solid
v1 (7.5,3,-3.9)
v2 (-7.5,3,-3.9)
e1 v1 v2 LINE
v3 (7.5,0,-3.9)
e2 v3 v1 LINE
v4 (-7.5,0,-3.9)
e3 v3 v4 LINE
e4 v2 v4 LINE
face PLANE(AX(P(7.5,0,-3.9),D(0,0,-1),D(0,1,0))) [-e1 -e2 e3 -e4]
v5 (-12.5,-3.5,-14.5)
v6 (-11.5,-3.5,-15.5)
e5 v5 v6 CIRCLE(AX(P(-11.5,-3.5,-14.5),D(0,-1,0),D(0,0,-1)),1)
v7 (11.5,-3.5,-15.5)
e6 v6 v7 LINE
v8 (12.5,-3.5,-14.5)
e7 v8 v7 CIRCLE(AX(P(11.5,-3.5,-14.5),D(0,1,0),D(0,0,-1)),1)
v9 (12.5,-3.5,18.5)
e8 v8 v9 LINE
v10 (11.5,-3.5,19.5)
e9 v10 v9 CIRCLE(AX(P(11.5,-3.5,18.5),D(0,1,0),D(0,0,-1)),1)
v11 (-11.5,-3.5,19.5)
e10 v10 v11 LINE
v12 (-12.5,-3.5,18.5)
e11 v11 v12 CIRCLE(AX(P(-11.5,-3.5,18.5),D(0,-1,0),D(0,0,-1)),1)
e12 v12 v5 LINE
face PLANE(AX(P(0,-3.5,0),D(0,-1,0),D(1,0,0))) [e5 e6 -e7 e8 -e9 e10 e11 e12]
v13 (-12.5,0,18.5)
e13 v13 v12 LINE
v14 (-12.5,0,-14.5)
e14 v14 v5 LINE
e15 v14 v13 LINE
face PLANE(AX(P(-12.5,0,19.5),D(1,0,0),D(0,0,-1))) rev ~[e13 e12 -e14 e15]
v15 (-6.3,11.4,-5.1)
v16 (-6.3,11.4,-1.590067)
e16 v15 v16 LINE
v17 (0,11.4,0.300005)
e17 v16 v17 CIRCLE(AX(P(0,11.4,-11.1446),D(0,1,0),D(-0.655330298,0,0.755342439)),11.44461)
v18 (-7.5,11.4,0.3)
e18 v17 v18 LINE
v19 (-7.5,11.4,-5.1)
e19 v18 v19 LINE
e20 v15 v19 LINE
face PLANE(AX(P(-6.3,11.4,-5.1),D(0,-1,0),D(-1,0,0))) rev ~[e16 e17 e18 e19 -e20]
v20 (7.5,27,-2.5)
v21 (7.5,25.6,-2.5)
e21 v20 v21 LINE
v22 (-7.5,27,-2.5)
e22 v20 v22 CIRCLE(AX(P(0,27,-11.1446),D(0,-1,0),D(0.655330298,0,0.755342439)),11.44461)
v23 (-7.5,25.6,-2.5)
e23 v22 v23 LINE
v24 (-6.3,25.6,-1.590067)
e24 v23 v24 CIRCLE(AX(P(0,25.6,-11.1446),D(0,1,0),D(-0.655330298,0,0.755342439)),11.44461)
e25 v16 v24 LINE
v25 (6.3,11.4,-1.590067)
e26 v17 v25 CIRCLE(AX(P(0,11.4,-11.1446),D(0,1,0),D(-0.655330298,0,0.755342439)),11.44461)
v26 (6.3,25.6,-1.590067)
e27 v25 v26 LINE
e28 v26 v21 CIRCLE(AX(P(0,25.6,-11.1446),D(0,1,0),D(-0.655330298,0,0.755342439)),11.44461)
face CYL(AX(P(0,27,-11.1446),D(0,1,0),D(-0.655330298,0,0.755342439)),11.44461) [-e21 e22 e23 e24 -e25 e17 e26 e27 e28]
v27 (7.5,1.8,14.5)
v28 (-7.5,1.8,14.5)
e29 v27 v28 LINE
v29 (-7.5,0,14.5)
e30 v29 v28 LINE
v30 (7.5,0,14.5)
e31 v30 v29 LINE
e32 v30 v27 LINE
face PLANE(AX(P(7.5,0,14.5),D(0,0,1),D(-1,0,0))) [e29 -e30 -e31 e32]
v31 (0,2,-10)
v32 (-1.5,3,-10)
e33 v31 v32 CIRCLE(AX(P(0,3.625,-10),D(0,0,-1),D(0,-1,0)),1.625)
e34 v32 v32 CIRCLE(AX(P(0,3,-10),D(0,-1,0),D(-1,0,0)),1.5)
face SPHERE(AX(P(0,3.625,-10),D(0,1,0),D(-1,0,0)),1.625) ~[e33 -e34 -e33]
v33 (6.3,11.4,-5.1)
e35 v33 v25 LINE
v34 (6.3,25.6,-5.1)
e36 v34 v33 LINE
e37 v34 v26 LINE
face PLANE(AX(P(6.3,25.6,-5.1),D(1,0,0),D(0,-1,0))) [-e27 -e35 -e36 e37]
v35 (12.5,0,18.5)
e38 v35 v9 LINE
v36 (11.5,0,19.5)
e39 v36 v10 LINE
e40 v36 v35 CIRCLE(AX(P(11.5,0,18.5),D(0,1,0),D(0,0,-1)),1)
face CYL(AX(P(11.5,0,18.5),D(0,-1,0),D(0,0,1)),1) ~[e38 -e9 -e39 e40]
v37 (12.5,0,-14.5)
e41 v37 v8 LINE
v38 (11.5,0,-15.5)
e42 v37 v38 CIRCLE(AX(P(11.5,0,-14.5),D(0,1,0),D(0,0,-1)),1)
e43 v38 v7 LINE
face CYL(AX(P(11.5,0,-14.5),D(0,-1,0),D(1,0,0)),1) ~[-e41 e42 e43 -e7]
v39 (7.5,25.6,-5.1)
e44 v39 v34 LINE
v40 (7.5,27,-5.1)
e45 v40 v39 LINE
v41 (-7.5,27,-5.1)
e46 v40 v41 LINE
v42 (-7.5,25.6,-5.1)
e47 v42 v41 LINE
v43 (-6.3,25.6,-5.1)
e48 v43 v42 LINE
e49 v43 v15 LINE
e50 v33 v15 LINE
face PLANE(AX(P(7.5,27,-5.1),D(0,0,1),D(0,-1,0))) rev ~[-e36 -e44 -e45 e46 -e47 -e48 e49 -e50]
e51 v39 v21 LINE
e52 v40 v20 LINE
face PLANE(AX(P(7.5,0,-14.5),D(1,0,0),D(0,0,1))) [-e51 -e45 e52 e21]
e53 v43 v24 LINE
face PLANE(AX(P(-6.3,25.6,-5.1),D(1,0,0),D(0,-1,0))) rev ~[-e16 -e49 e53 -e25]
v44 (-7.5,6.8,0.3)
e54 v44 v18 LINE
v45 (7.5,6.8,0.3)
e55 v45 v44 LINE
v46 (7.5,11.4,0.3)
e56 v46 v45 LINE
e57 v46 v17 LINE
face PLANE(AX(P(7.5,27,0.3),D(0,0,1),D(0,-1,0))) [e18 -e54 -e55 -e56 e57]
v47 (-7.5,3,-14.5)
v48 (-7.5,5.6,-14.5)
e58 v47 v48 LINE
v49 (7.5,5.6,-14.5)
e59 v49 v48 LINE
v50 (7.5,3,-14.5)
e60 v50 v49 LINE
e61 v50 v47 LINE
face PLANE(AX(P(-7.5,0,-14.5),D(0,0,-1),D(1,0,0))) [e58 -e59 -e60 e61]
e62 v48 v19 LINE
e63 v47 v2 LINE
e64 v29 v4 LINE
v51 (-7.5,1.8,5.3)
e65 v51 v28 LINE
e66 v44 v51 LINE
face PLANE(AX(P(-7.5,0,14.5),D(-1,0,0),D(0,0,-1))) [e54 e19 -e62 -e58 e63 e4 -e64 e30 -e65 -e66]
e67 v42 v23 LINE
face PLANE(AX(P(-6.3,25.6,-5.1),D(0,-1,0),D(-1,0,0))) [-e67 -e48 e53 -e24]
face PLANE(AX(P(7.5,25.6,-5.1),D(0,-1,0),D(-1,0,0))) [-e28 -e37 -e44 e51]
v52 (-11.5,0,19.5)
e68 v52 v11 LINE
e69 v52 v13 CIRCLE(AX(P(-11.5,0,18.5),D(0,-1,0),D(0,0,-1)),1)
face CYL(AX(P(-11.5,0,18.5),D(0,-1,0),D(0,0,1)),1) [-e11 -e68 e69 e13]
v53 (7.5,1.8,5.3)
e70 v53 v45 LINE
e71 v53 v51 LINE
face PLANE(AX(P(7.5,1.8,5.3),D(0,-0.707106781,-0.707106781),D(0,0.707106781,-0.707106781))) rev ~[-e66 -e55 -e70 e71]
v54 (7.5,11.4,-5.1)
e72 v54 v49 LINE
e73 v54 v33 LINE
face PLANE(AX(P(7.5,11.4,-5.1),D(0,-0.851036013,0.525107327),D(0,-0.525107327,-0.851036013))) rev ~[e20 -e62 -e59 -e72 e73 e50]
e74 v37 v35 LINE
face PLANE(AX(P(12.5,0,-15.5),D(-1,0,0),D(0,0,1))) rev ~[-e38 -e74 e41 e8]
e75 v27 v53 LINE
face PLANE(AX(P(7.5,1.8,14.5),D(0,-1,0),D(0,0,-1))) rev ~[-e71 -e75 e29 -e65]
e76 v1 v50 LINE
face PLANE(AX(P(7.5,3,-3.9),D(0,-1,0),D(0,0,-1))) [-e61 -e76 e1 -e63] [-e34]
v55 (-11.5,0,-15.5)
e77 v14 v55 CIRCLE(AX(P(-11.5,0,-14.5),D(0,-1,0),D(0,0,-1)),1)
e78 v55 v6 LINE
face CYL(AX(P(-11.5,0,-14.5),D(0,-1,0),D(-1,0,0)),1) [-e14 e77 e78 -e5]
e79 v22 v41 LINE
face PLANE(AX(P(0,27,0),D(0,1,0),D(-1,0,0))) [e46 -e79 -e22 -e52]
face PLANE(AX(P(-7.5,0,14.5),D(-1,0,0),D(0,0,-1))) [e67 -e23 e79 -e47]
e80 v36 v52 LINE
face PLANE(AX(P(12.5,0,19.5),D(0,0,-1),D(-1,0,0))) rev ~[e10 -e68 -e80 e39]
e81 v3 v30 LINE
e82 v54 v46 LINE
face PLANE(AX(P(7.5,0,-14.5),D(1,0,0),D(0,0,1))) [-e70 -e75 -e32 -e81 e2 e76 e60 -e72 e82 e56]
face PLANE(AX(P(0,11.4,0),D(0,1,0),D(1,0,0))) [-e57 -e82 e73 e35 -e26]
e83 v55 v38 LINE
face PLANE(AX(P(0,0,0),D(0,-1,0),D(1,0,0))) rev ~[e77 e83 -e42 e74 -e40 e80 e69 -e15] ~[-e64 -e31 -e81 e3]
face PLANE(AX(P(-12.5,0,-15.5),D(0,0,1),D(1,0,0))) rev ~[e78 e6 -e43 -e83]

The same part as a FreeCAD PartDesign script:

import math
import FreeCAD as App
import Part
import Sketcher
from FreeCAD import Vector
Q = App.Units.Quantity


def edges_at(feature, points):
    """Names of the edges that pass closest to the given points."""
    edges = feature.Shape.Edges
    near = lambda p: min(range(len(edges)), key=lambda i: edges[i].distToShape(Part.Vertex(*p))[0])
    return sorted({f"Edge{near(p) + 1}" for p in points})


def add_polygon(sketch, points):
    """Adds a closed chain of lines whose ends are joined by coincident constraints."""
    first, n = sketch.GeometryCount, len(points)
    for a, b in zip(points, points[1:] + points[:1]):
        sketch.addGeometry(Part.LineSegment(App.Vector(*a, 0), App.Vector(*b, 0)), False)
    for i in range(n):
        sketch.addConstraint(Sketcher.Constraint("Coincident", first + i, 2, first + (i + 1) % n, 1))

doc = App.newDocument("Part")
params = doc.addObject("Spreadsheet::Sheet", "Params")
for row, (alias, value) in enumerate([
    ("sketch1_width", "15 mm"),
    ("sketch1_height", "29 mm"),
    ("pad1_length", "27 mm"),
    ("sketch2_width", "25 mm"),
    ("sketch2_height", "35 mm"),
    ("pad2_length", "3.5 mm"),
    ("fillet_radius", "1 mm"),
    ("fillet2_radius", "1 mm"),
    ("fillet3_radius", "1 mm"),
    ("sketch3_width", "3 mm"),
    ("sketch3_height", "9.4 mm"),
    ("sketch3_width2", "20.2 mm"),
    ("sketch3_width3", "15.6 mm"),
    ("sketch3_width4", "21.4 mm"),
    ("pocket1_length", "23 mm"),
    ("sketch4_width", "7.5 mm"),
    ("sketch4_height", "2.8 mm"),
    ("pocket2_length", "15.6 mm"),
    ("sketch5_width", "1.2 mm"),
    ("sketch5_height", "14.2 mm"),
    ("pocket3_length", "16 mm"),
    ("sketch6_height", "1 mm"),
    ("sketch6_width", "1.5 mm"),
    ("revolution_angle", "360 deg"),
], start=1):
    params.set(f"A{row}", alias)
    params.set(f"B{row}", "=" + value)
    params.setAlias(f"B{row}", alias)

body = doc.addObject("PartDesign::Body", "Body")

# Sketch on XZ plane
sketch1 = body.newObject("Sketcher::SketchObject", "Sketch")
sketch1.AttachmentSupport = (doc.getObject("XZ_Plane"), [""])
sketch1.MapMode = "FlatFace"
add_polygon(sketch1, [(-8, 14), (8, 14), (8, -14), (-8, -14)])  # lines 0-3
sketch1.addConstraint([
    Sketcher.Constraint("Horizontal", 0),
    Sketcher.Constraint("Vertical", 1),
    Sketcher.Constraint("Horizontal", 2),
    Sketcher.Constraint("Vertical", 3),
    Sketcher.Constraint("Symmetric", 0, 2, 2, 2, -1, 1),
    Sketcher.Constraint("DistanceX", 0, 1, 0, 2, Q("15 mm")),
    Sketcher.Constraint("DistanceY", 1, 2, 1, 1, Q("29 mm")),
])
sketch1.setExpression("Constraints[9]", "Params.sketch1_width")
sketch1.setExpression("Constraints[10]", "Params.sketch1_height")
pad1 = body.newObject("PartDesign::Pad", "Pad")
pad1.Profile = sketch1
pad1.setExpression("Length", "Params.pad1_length")
pad1.Reversed = True

# Sketch on XZ plane
sketch2 = body.newObject("Sketcher::SketchObject", "Sketch001")
sketch2.AttachmentSupport = (doc.getObject("XZ_Plane"), [""])
sketch2.MapMode = "FlatFace"
add_polygon(sketch2, [(12, -16), (12, 20), (-12, 20), (-12, -16)])  # lines 0-3
sketch2.addConstraint([
    Sketcher.Constraint("Vertical", 0),
    Sketcher.Constraint("Horizontal", 1),
    Sketcher.Constraint("Vertical", 2),
    Sketcher.Constraint("Horizontal", 3),
    Sketcher.Constraint("DistanceX", 1, 2, 1, 1, Q("25 mm")),
    Sketcher.Constraint("DistanceY", 0, 1, 0, 2, Q("35 mm")),
    Sketcher.Constraint("DistanceX", -1, 1, 0, 2, Q("12.5 mm")),
    Sketcher.Constraint("DistanceY", -1, 1, 0, 2, Q("19.5 mm")),
])
sketch2.setExpression("Constraints[8]", "Params.sketch2_width")
sketch2.setExpression("Constraints[9]", "Params.sketch2_height")
pad2 = body.newObject("PartDesign::Pad", "Pad001")
pad2.Profile = sketch2
pad2.setExpression("Length", "Params.pad2_length")
doc.recompute()

fillet = body.newObject("PartDesign::Fillet", "Fillet")
fillet.Base = (pad2, edges_at(pad2, [(-12.5, -1.75, 19.5)]))
fillet.setExpression("Radius", "Params.fillet_radius")
doc.recompute()

fillet2 = body.newObject("PartDesign::Fillet", "Fillet001")
fillet2.Base = (fillet, edges_at(fillet, [(12.5, -1.75, 19.5), (12.5, -1.75, -15.5)]))
fillet2.setExpression("Radius", "Params.fillet2_radius")
doc.recompute()

fillet3 = body.newObject("PartDesign::Fillet", "Fillet002")
fillet3.Base = (fillet2, edges_at(fillet2, [(-12.5, -1.75, -15.5)]))
fillet3.setExpression("Radius", "Params.fillet3_radius")

# Sketch on YZ plane
sketch3 = body.newObject("Sketcher::SketchObject", "Sketch002")
sketch3.AttachmentSupport = (doc.getObject("YZ_Plane"), [""])
sketch3.MapMode = "FlatFace"
sketch3.AttachmentOffset = App.Placement(Vector(0, 0, 7.5), App.Rotation())
add_polygon(sketch3, [(6.8, 0.3), (27, 0.3), (27, 14.5), (1.8, 14.5), (1.8, 5.3)])  # lines 0-4
add_polygon(sketch3, [(27, -14.5), (27, -5.1), (11.4, -5.1), (5.6, -14.5)])  # lines 5-8
add_polygon(sketch3, [(3, -3.9), (0, -3.9), (0, -14.5), (3, -14.5)])  # lines 9-12
sketch3.addConstraint([
    Sketcher.Constraint("Horizontal", 0),
    Sketcher.Constraint("Vertical", 1),
    Sketcher.Constraint("Horizontal", 2),
    Sketcher.Constraint("Vertical", 3),
    Sketcher.Constraint("Vertical", 5),
    Sketcher.Constraint("Horizontal", 6),
    Sketcher.Constraint("Horizontal", 8),
    Sketcher.Constraint("Horizontal", 9),
    Sketcher.Constraint("Vertical", 10),
    Sketcher.Constraint("Horizontal", 11),
    Sketcher.Constraint("Vertical", 12),
    Sketcher.Constraint("Symmetric", 1, 2, 8, 2, -1),
    Sketcher.Constraint("PointOnObject", 9, 2, -2),
    Sketcher.Constraint("Horizontal", 8, 2, 10, 2),
    Sketcher.Constraint("DistanceX", 9, 2, 9, 1, Q("3 mm")),
    Sketcher.Constraint("DistanceY", 5, 1, 5, 2, Q("9.4 mm")),
    Sketcher.Constraint("DistanceY", 0, 2, 3, 2, Q("5 mm")),
    Sketcher.Constraint("DistanceX", 3, 2, 4, 2, Q("5 mm")),
    Sketcher.Constraint("DistanceX", 0, 1, 0, 2, Q("20.2 mm")),
    Sketcher.Constraint("DistanceX", 6, 2, 6, 1, Q("15.6 mm")),
    Sketcher.Constraint("DistanceX", 8, 1, 8, 2, Q("21.4 mm")),
    Sketcher.Constraint("DistanceY", 1, 1, 1, 2, Q("14.2 mm")),
    Sketcher.Constraint("DistanceY", 10, 2, 10, 1, Q("10.6 mm")),
    Sketcher.Constraint("DistanceX", -1, 1, 0, 2, Q("27 mm")),
    Sketcher.Constraint("DistanceY", -1, 1, 0, 2, Q("0.3 mm")),
])
sketch3.setExpression("Constraints[27]", "Params.sketch3_width")
sketch3.setExpression("Constraints[28]", "Params.sketch3_height")
sketch3.setExpression("Constraints[31]", "Params.sketch3_width2")
sketch3.setExpression("Constraints[32]", "Params.sketch3_width3")
sketch3.setExpression("Constraints[33]", "Params.sketch3_width4")
pocket1 = body.newObject("PartDesign::Pocket", "Pocket")
pocket1.Profile = sketch3
pocket1.setExpression("Length", "Params.pocket1_length")

# Sketch on XZ plane
sketch4 = body.newObject("Sketcher::SketchObject", "Sketch003")
sketch4.AttachmentSupport = (doc.getObject("XZ_Plane"), [""])
sketch4.MapMode = "FlatFace"
sketch4.AttachmentOffset = App.Placement(Vector(0, 0, -27), App.Rotation())
sketch4.addGeometry([
    Part.ArcOfCircle(Part.Circle(Vector(0, -11.1, 0), Vector(0, 0, 1), 11.4), math.radians(90), math.radians(131)),  # 0
    Part.LineSegment(Vector(-7.5, -2.5, 0), Vector(-7.5, 0.3, 0)),  # 1
    Part.LineSegment(Vector(-7.5, 0.3, 0), Vector(0, 0.3, 0)),  # 2
    Part.ArcOfCircle(Part.Circle(Vector(0, -11.1, 0), Vector(0, 0, 1), 11.4), math.radians(49), math.radians(90)),  # 3
    Part.LineSegment(Vector(0, 0.3, 0), Vector(7.5, 0.3, 0)),  # 4
    Part.LineSegment(Vector(7.5, 0.3, 0), Vector(7.5, -2.5, 0)),  # 5
], False)
sketch4.addConstraint([
    Sketcher.Constraint("Coincident", 0, 2, 1, 1),
    Sketcher.Constraint("Coincident", 1, 2, 2, 1),
    Sketcher.Constraint("Tangent", 2, 2, 0, 1),
    Sketcher.Constraint("Tangent", 3, 2, 4, 1),
    Sketcher.Constraint("Coincident", 4, 2, 5, 1),
    Sketcher.Constraint("Coincident", 5, 2, 3, 1),
    Sketcher.Constraint("Vertical", 1),
    Sketcher.Constraint("Horizontal", 2),
    Sketcher.Constraint("Horizontal", 4),
    Sketcher.Constraint("Vertical", 5),
    Sketcher.Constraint("Coincident", 3, 3, 0, 3),
    Sketcher.Constraint("Equal", 0, 3),
    Sketcher.Constraint("Symmetric", 0, 2, 5, 2, -2),
    Sketcher.Constraint("DistanceX", 2, 1, 2, 2, Q("7.5 mm")),
    Sketcher.Constraint("DistanceY", 1, 1, 1, 2, Q("2.8 mm")),
    Sketcher.Constraint("DistanceY", 0, 2, -1, 1, Q("2.5 mm")),
])
sketch4.setExpression("Constraints[13]", "Params.sketch4_width")
sketch4.setExpression("Constraints[14]", "Params.sketch4_height")
pocket2 = body.newObject("PartDesign::Pocket", "Pocket001")
pocket2.Profile = sketch4
pocket2.setExpression("Length", "Params.pocket2_length")
pocket2.Reversed = True

# Sketch on XY plane
sketch5 = body.newObject("Sketcher::SketchObject", "Sketch004")
sketch5.AttachmentSupport = (doc.getObject("XY_Plane"), [""])
sketch5.MapMode = "FlatFace"
sketch5.AttachmentOffset = App.Placement(Vector(0, 0, -5.1), App.Rotation())
add_polygon(sketch5, [(-7.5, 11.4), (-7.5, 25.6), (-6.3, 25.6), (-6.3, 11.4)])  # lines 0-3
add_polygon(sketch5, [(7.5, 25.6), (7.5, 11.4), (6.3, 11.4), (6.3, 25.6)])  # lines 4-7
sketch5.addConstraint([
    Sketcher.Constraint("Vertical", 0),
    Sketcher.Constraint("Horizontal", 1),
    Sketcher.Constraint("Vertical", 2),
    Sketcher.Constraint("Horizontal", 3),
    Sketcher.Constraint("Vertical", 4),
    Sketcher.Constraint("Horizontal", 5),
    Sketcher.Constraint("Vertical", 6),
    Sketcher.Constraint("Horizontal", 7),
    Sketcher.Constraint("Symmetric", 3, 2, 4, 2, -2),
    Sketcher.Constraint("Symmetric", 1, 2, 6, 2, -2),
    Sketcher.Constraint("DistanceX", 1, 1, 1, 2, Q("1.2 mm")),
    Sketcher.Constraint("DistanceY", 0, 1, 0, 2, Q("14.2 mm")),
    Sketcher.Constraint("DistanceX", 3, 2, 4, 2, Q("15 mm")),
    Sketcher.Constraint("DistanceY", -1, 1, 0, 2, Q("25.6 mm")),
])
sketch5.setExpression("Constraints[18]", "Params.sketch5_width")
sketch5.setExpression("Constraints[19]", "Params.sketch5_height")
pocket3 = body.newObject("PartDesign::Pocket", "Pocket002")
pocket3.Profile = sketch5
pocket3.setExpression("Length", "Params.pocket3_length")
pocket3.Reversed = True

# Sketch on XY plane
sketch6 = body.newObject("Sketcher::SketchObject", "Sketch005")
sketch6.AttachmentSupport = (doc.getObject("XY_Plane"), [""])
sketch6.MapMode = "FlatFace"
sketch6.AttachmentOffset = App.Placement(Vector(0, 0, -10), App.Rotation())
sketch6.addGeometry([
    Part.LineSegment(Vector(-1.5, 3, 0), Vector(0, 3, 0)),
    Part.LineSegment(Vector(0, 3, 0), Vector(0, 2, 0)),
    Part.ArcOfCircle(Part.Circle(Vector(0, 3.6, 0), Vector(0, 0, 1), 1.6), math.radians(-157), math.radians(-90)),
], False)
sketch6.addConstraint([
    Sketcher.Constraint("Coincident", 0, 2, 1, 1),
    Sketcher.Constraint("Coincident", 1, 2, 2, 2),
    Sketcher.Constraint("Coincident", 2, 1, 0, 1),
    Sketcher.Constraint("Horizontal", 0),
    Sketcher.Constraint("Vertical", 1),
    Sketcher.Constraint("PointOnObject", 2, 3, -2),
    Sketcher.Constraint("PointOnObject", 0, 2, -2),
    Sketcher.Constraint("DistanceY", 1, 2, 1, 1, Q("1 mm")),
    Sketcher.Constraint("DistanceX", 0, 1, 0, 2, Q("1.5 mm")),
    Sketcher.Constraint("DistanceY", -1, 1, 0, 2, Q("3 mm")),
])
sketch6.setExpression("Constraints[7]", "Params.sketch6_height")
sketch6.setExpression("Constraints[8]", "Params.sketch6_width")
revolution = body.newObject("PartDesign::Revolution", "Revolution")
revolution.Profile = sketch6
revolution.ReferenceAxis = (sketch6, ["V_Axis"])
revolution.setExpression("Angle", "Params.revolution_angle")

doc.recompute()
